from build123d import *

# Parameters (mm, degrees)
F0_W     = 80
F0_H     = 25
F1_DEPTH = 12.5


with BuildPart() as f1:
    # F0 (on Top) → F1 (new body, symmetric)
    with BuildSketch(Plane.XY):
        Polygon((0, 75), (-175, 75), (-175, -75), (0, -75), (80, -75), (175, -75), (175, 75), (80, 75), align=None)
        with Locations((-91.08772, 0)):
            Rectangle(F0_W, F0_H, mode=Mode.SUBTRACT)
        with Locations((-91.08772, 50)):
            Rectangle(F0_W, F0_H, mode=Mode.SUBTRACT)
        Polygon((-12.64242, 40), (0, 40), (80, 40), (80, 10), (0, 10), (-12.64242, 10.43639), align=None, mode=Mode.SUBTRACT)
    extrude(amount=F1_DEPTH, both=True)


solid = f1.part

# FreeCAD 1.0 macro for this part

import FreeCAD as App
import Part
import Sketcher

V = App.Vector
Q = App.Units.Quantity


def add_polygon(sketch, points):
    """Adds a closed chain of lines whose ends are joined by coincident constraints."""
    first, n = sketch.GeometryCount, len(points)
    for a, b in zip(points, points[1:] + points[:1]):
        sketch.addGeometry(Part.LineSegment(App.Vector(*a, 0), App.Vector(*b, 0)), False)
    for i in range(n):
        sketch.addConstraint(Sketcher.Constraint("Coincident", first + i, 2, first + (i + 1) % n, 1))

doc = App.newDocument("Part")
body = doc.addObject("PartDesign::Body", "Body")

# Sketch on XY plane
sketch1 = body.newObject("Sketcher::SketchObject", "Sketch")
sketch1.AttachmentSupport = (doc.getObject("XY_Plane"), [""])
sketch1.MapMode = "FlatFace"
add_polygon(sketch1, [(-175, 75), (-175, -75), (175, -75), (175, 75)])  # lines 0-3
add_polygon(sketch1, [(-51, -12), (-131, -12), (-131, 12), (-51, 12)])  # lines 4-7
add_polygon(sketch1, [(-51, 38), (-131, 38), (-131, 62), (-51, 62)])  # lines 8-11
add_polygon(sketch1, [(-13, 10), (-13, 40), (80, 40), (80, 10), (0, 10)])  # lines 12-16
sketch1.addConstraint(Sketcher.Constraint("Vertical", 0))
sketch1.addConstraint(Sketcher.Constraint("Horizontal", 1))
sketch1.addConstraint(Sketcher.Constraint("Vertical", 2))
sketch1.addConstraint(Sketcher.Constraint("Horizontal", 3))
sketch1.addConstraint(Sketcher.Constraint("Horizontal", 4))
sketch1.addConstraint(Sketcher.Constraint("Vertical", 5))
sketch1.addConstraint(Sketcher.Constraint("Horizontal", 6))
sketch1.addConstraint(Sketcher.Constraint("Vertical", 7))
sketch1.addConstraint(Sketcher.Constraint("Horizontal", 8))
sketch1.addConstraint(Sketcher.Constraint("Vertical", 9))
sketch1.addConstraint(Sketcher.Constraint("Horizontal", 10))
sketch1.addConstraint(Sketcher.Constraint("Vertical", 11))
sketch1.addConstraint(Sketcher.Constraint("Vertical", 12))
sketch1.addConstraint(Sketcher.Constraint("Horizontal", 13))
sketch1.addConstraint(Sketcher.Constraint("Vertical", 14))
sketch1.addConstraint(Sketcher.Constraint("Horizontal", 15))
sketch1.addConstraint(Sketcher.Constraint("Symmetric", 0, 2, 2, 2, -1, 1))
sketch1.addConstraint(Sketcher.Constraint("PointOnObject", 15, 2, -2))
sketch1.addConstraint(Sketcher.Constraint("Vertical", 5, 2, 8, 2))
sketch1.addConstraint(Sketcher.Constraint("Vertical", 7, 2, 10, 2))
sketch1.addConstraint(Sketcher.Constraint("Equal", 10, 15))
sketch1.addConstraint(Sketcher.Constraint("Equal", 7, 9))
sketch1.addConstraint(Sketcher.Constraint("DistanceX", 1, 1, 1, 2, Q("350 mm")))
sketch1.addConstraint(Sketcher.Constraint("DistanceX", 4, 2, 4, 1, Q("80 mm")))
sketch1.addConstraint(Sketcher.Constraint("DistanceY", 0, 2, 0, 1, Q("150 mm")))
sketch1.addConstraint(Sketcher.Constraint("DistanceY", 5, 1, 5, 2, Q("25 mm")))
sketch1.addConstraint(Sketcher.Constraint("DistanceY", 14, 2, 14, 1, Q("30 mm")))
sketch1.addConstraint(Sketcher.Constraint("DistanceY", -1, 1, 12, 2, Q("40 mm")))
sketch1.addConstraint(Sketcher.Constraint("DistanceY", 5, 2, 8, 2, Q("25 mm")))
sketch1.addConstraint(Sketcher.Constraint("DistanceY", 4, 2, -1, 1, Q("12.5 mm")))
sketch1.addConstraint(Sketcher.Constraint("DistanceX", 13, 1, 13, 2, Q("92.64242 mm")))
sketch1.addConstraint(Sketcher.Constraint("DistanceY", 12, 1, 12, 2, Q("29.56361 mm")))
sketch1.addConstraint(Sketcher.Constraint("DistanceX", 11, 2, 12, 2, Q("38.4453 mm")))
pad1 = body.newObject("PartDesign::Pad", "Pad")
pad1.Profile = sketch1
pad1.Length = 25
pad1.Midplane = True

doc.recompute()
